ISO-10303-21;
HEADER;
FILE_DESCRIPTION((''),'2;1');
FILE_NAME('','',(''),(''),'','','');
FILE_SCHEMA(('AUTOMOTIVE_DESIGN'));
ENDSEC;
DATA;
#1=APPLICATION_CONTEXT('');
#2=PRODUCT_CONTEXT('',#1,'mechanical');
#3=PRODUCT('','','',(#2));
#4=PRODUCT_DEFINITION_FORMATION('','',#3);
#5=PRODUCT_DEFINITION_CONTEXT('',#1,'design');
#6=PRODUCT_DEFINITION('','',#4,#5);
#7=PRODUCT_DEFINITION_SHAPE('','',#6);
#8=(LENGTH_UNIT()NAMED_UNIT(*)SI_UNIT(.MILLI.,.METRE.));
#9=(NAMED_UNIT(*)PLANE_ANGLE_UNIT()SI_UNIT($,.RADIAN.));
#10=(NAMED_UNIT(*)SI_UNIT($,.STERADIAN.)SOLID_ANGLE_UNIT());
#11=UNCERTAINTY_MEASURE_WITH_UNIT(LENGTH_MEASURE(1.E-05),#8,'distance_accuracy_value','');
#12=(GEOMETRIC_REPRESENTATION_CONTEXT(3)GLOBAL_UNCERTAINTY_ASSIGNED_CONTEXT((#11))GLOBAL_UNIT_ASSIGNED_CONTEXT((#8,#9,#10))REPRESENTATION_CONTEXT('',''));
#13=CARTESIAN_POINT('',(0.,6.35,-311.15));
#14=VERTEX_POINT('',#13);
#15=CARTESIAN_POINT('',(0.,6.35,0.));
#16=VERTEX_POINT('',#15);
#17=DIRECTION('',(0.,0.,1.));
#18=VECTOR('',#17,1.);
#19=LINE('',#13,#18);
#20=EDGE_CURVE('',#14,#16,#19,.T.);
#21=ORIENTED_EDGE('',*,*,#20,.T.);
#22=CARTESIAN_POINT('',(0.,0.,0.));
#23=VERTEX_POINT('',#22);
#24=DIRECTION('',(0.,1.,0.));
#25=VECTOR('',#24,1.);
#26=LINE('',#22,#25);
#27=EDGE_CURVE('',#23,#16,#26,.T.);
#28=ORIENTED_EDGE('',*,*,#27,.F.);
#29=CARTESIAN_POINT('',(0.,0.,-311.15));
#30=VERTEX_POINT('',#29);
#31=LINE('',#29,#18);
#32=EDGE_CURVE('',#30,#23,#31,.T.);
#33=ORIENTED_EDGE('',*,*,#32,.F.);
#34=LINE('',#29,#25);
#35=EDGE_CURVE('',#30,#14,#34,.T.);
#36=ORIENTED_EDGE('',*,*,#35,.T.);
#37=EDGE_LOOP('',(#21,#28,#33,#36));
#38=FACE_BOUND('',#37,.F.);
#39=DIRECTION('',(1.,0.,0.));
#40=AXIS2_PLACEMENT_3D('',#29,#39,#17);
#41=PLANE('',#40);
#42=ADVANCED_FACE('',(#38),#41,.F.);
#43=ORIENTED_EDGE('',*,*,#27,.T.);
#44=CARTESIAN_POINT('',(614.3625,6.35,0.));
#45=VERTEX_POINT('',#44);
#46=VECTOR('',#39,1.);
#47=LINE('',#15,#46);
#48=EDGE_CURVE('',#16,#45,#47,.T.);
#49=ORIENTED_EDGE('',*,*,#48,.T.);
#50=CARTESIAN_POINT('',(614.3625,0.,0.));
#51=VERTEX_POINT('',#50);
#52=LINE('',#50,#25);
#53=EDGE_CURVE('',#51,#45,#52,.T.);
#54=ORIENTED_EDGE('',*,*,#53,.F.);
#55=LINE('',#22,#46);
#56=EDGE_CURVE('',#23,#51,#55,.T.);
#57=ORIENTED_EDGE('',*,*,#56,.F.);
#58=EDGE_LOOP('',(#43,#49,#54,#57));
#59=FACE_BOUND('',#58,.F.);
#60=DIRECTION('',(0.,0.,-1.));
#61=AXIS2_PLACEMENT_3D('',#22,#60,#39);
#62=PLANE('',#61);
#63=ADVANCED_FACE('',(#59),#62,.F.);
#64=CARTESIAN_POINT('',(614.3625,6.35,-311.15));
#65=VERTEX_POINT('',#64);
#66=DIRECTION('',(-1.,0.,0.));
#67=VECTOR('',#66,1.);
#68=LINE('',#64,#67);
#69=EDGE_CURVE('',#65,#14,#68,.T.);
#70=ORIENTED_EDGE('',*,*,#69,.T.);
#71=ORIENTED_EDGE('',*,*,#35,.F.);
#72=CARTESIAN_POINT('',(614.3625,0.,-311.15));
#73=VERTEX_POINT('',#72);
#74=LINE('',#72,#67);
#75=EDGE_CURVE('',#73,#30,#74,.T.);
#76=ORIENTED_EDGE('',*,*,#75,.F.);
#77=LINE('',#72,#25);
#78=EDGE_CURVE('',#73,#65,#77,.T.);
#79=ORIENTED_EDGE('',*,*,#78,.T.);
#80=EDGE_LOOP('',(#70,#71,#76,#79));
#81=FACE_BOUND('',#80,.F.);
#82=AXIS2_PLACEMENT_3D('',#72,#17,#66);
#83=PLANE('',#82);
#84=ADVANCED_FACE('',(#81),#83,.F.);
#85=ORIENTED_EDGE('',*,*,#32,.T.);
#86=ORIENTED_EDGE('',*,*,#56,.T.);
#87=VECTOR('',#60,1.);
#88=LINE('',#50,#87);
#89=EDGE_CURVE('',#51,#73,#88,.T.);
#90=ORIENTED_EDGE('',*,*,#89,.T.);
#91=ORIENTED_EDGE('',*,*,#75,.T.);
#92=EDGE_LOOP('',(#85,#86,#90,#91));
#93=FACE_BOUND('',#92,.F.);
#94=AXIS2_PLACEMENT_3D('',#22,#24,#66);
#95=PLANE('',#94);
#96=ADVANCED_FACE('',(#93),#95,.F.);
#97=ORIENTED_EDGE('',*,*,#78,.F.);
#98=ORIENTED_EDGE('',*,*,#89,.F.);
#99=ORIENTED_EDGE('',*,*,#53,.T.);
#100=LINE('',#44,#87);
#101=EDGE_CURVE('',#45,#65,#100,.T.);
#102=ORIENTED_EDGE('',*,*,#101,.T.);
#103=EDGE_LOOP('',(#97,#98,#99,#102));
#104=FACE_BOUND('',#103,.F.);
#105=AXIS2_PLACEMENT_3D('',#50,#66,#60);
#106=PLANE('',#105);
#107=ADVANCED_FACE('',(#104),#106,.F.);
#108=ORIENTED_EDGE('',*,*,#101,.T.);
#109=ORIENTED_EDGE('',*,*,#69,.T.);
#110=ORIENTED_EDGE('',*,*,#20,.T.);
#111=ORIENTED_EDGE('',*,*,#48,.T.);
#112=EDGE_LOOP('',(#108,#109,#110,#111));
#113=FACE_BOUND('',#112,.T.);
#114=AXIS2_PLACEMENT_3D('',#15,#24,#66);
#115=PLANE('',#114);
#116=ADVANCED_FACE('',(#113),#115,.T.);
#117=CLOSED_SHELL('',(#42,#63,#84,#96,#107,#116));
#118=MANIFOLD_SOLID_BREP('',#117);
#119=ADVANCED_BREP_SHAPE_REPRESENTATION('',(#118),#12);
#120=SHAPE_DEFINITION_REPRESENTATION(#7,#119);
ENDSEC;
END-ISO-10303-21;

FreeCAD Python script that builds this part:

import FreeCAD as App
import Part
import Sketcher
Q = App.Units.Quantity

doc = App.newDocument("Part")
body = doc.addObject("PartDesign::Body", "Body")

sketch1 = body.newObject("Sketcher::SketchObject", "Sketch")
sketch1.AttachmentSupport = (doc.getObject("XZ_Plane"), [""])
sketch1.MapMode = "FlatFace"
sketch1.addGeometry(Part.LineSegment(App.Vector(0, -311, 0), App.Vector(0, 0, 0)), False)
sketch1.addGeometry(Part.LineSegment(App.Vector(0, 0, 0), App.Vector(614, 0, 0)), False)
sketch1.addGeometry(Part.LineSegment(App.Vector(614, 0, 0), App.Vector(614, -311, 0)), False)
sketch1.addGeometry(Part.LineSegment(App.Vector(614, -311, 0), App.Vector(0, -311, 0)), False)
sketch1.addConstraint(Sketcher.Constraint("Coincident", 0, 2, 1, 1))
sketch1.addConstraint(Sketcher.Constraint("Coincident", 1, 2, 2, 1))
sketch1.addConstraint(Sketcher.Constraint("Coincident", 2, 2, 3, 1))
sketch1.addConstraint(Sketcher.Constraint("Coincident", 3, 2, 0, 1))
sketch1.addConstraint(Sketcher.Constraint("Vertical", 0))
sketch1.addConstraint(Sketcher.Constraint("Horizontal", 1))
sketch1.addConstraint(Sketcher.Constraint("Vertical", 2))
sketch1.addConstraint(Sketcher.Constraint("Horizontal", 3))
sketch1.addConstraint(Sketcher.Constraint("Coincident", 0, 2, -1, 1))
sketch1.addConstraint(Sketcher.Constraint("DistanceY", 0, 1, 0, 2, Q("12.25 in")))
sketch1.addConstraint(Sketcher.Constraint("DistanceX", 1, 1, 1, 2, Q("24.1875 in")))
pad1 = body.newObject("PartDesign::Pad", "Pad")
pad1.Profile = sketch1
pad1.Length = Q("0.25 in")
pad1.Reversed = True

doc.recompute()
